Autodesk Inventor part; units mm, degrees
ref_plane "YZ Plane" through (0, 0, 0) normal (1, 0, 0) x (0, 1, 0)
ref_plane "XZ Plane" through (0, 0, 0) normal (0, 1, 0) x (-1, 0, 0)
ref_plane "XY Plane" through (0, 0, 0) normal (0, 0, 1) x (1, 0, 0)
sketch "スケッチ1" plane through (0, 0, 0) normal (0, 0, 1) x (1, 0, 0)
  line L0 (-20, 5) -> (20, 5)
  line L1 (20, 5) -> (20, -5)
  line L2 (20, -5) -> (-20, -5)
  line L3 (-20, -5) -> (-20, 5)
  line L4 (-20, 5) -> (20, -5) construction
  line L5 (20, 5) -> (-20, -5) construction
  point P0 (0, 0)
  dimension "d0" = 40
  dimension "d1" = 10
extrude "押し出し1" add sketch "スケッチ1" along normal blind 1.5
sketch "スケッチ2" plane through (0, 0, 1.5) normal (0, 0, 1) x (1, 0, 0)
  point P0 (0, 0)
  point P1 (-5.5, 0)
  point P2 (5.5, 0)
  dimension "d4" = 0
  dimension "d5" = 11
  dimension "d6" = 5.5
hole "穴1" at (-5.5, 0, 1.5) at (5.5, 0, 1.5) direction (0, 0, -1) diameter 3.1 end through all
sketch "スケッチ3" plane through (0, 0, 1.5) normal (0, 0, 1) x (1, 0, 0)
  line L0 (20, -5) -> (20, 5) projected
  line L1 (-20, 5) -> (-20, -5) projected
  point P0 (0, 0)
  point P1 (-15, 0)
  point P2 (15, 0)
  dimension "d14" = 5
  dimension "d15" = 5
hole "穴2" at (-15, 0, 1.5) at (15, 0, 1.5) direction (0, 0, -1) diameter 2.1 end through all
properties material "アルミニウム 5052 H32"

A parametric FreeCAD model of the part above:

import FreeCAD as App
import Part
import Sketcher

V = App.Vector
Q = App.Units.Quantity


def add_polygon(sketch, points):
    """Adds a closed chain of lines whose ends are joined by coincident constraints."""
    first, n = sketch.GeometryCount, len(points)
    for a, b in zip(points, points[1:] + points[:1]):
        sketch.addGeometry(Part.LineSegment(App.Vector(*a, 0), App.Vector(*b, 0)), False)
    for i in range(n):
        sketch.addConstraint(Sketcher.Constraint("Coincident", first + i, 2, first + (i + 1) % n, 1))

doc = App.newDocument("Part")
body = doc.addObject("PartDesign::Body", "Body")

# Sketch on XY plane
sketch1 = body.newObject("Sketcher::SketchObject", "Sketch")
sketch1.AttachmentSupport = (doc.getObject("XY_Plane"), [""])
sketch1.MapMode = "FlatFace"
add_polygon(sketch1, [(20, 5), (-20, 5), (-20, -5), (20, -5)])  # lines 0-3
sketch1.addConstraint([
    Sketcher.Constraint("Horizontal", 0),
    Sketcher.Constraint("Vertical", 1),
    Sketcher.Constraint("Horizontal", 2),
    Sketcher.Constraint("Vertical", 3),
    Sketcher.Constraint("Symmetric", 0, 2, 2, 2, -1, 1),
    Sketcher.Constraint("DistanceX", 0, 2, 0, 1, Q("40 mm")),
    Sketcher.Constraint("DistanceY", 1, 2, 1, 1, Q("10 mm")),
])
pad1 = body.newObject("PartDesign::Pad", "Pad")
pad1.Profile = sketch1
pad1.Length = 1.5

# Sketch on XY plane
sketch2 = body.newObject("Sketcher::SketchObject", "Sketch001")
sketch2.AttachmentSupport = (doc.getObject("XY_Plane"), [""])
sketch2.MapMode = "FlatFace"
sketch2.AttachmentOffset = App.Placement(V(0, 0, 1.5), App.Rotation())
sketch2.addGeometry([
    Part.Circle(V(-5.5, 0, 0), V(0, 0, 1), 1.6),
    Part.Circle(V(5.5, 0, 0), V(0, 0, 1), 1.6),
], False)
sketch2.addConstraint([
    Sketcher.Constraint("Equal", 0, 1),
    Sketcher.Constraint("Symmetric", 0, 3, 1, 3, -1, 1),
    Sketcher.Constraint("PointOnObject", 0, 3, -1),
    Sketcher.Constraint("Diameter", 0, Q("3.1 mm")),
    Sketcher.Constraint("DistanceX", 0, 3, 1, 3, Q("11 mm")),
])
doc.recompute()
hole = body.newObject("PartDesign::Hole", "Hole")
hole.Profile = sketch2
hole.ThreadType = "None"
hole.Diameter = 3.1
hole.DepthType = "ThroughAll"

# Sketch on XY plane
sketch3 = body.newObject("Sketcher::SketchObject", "Sketch002")
sketch3.AttachmentSupport = (doc.getObject("XY_Plane"), [""])
sketch3.MapMode = "FlatFace"
sketch3.AttachmentOffset = App.Placement(V(0, 0, 1.5), App.Rotation())
sketch3.addGeometry([
    Part.Circle(V(-15, 0, 0), V(0, 0, 1), 1.1),
    Part.Circle(V(15, 0, 0), V(0, 0, 1), 1.1),
], False)
sketch3.addConstraint([
    Sketcher.Constraint("Equal", 0, 1),
    Sketcher.Constraint("Symmetric", 0, 3, 1, 3, -1, 1),
    Sketcher.Constraint("PointOnObject", 0, 3, -1),
    Sketcher.Constraint("Diameter", 0, Q("2.1 mm")),
    Sketcher.Constraint("DistanceX", 0, 3, -1, 1, Q("15 mm")),
])
doc.recompute()
hole2 = body.newObject("PartDesign::Hole", "Hole001")
hole2.Profile = sketch3
hole2.ThreadType = "None"
hole2.Diameter = 2.1
hole2.DepthType = "ThroughAll"

doc.recompute()
